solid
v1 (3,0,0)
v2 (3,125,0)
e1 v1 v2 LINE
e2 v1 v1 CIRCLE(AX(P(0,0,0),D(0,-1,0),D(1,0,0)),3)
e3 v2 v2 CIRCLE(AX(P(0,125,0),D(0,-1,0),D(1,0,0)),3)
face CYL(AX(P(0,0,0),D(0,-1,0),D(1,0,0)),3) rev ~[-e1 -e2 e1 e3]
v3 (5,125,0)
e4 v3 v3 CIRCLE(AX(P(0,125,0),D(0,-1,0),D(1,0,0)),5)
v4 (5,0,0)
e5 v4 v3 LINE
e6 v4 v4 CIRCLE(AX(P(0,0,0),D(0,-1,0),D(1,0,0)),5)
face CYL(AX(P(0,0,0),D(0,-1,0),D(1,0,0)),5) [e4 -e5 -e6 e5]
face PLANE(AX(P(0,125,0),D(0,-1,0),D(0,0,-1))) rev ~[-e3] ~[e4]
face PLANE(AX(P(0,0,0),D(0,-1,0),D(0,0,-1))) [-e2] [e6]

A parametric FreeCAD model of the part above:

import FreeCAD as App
import Part
import Sketcher
from FreeCAD import Vector
Q = App.Units.Quantity

doc = App.newDocument("Part")
body = doc.addObject("PartDesign::Body", "Body")

# Sketch on XZ plane
sketch1 = body.newObject("Sketcher::SketchObject", "Sketch")
sketch1.AttachmentSupport = (doc.getObject("XZ_Plane"), [""])
sketch1.MapMode = "FlatFace"
sketch1.addGeometry(Part.Circle(Vector(0, 0, 0), Vector(0, 0, 1), 5), False)
sketch1.addGeometry(Part.Circle(Vector(0, 0, 0), Vector(0, 0, 1), 3), False)
sketch1.addConstraint(Sketcher.Constraint("Coincident", 0, 3, -1, 1))
sketch1.addConstraint(Sketcher.Constraint("Coincident", 1, 3, -1, 1))
sketch1.addConstraint(Sketcher.Constraint("Diameter", 0, Q("10 mm")))
sketch1.addConstraint(Sketcher.Constraint("Diameter", 1, Q("6 mm")))
pad1 = body.newObject("PartDesign::Pad", "Pad")
pad1.Profile = sketch1
pad1.Length = 125
pad1.Reversed = True

doc.recompute()
